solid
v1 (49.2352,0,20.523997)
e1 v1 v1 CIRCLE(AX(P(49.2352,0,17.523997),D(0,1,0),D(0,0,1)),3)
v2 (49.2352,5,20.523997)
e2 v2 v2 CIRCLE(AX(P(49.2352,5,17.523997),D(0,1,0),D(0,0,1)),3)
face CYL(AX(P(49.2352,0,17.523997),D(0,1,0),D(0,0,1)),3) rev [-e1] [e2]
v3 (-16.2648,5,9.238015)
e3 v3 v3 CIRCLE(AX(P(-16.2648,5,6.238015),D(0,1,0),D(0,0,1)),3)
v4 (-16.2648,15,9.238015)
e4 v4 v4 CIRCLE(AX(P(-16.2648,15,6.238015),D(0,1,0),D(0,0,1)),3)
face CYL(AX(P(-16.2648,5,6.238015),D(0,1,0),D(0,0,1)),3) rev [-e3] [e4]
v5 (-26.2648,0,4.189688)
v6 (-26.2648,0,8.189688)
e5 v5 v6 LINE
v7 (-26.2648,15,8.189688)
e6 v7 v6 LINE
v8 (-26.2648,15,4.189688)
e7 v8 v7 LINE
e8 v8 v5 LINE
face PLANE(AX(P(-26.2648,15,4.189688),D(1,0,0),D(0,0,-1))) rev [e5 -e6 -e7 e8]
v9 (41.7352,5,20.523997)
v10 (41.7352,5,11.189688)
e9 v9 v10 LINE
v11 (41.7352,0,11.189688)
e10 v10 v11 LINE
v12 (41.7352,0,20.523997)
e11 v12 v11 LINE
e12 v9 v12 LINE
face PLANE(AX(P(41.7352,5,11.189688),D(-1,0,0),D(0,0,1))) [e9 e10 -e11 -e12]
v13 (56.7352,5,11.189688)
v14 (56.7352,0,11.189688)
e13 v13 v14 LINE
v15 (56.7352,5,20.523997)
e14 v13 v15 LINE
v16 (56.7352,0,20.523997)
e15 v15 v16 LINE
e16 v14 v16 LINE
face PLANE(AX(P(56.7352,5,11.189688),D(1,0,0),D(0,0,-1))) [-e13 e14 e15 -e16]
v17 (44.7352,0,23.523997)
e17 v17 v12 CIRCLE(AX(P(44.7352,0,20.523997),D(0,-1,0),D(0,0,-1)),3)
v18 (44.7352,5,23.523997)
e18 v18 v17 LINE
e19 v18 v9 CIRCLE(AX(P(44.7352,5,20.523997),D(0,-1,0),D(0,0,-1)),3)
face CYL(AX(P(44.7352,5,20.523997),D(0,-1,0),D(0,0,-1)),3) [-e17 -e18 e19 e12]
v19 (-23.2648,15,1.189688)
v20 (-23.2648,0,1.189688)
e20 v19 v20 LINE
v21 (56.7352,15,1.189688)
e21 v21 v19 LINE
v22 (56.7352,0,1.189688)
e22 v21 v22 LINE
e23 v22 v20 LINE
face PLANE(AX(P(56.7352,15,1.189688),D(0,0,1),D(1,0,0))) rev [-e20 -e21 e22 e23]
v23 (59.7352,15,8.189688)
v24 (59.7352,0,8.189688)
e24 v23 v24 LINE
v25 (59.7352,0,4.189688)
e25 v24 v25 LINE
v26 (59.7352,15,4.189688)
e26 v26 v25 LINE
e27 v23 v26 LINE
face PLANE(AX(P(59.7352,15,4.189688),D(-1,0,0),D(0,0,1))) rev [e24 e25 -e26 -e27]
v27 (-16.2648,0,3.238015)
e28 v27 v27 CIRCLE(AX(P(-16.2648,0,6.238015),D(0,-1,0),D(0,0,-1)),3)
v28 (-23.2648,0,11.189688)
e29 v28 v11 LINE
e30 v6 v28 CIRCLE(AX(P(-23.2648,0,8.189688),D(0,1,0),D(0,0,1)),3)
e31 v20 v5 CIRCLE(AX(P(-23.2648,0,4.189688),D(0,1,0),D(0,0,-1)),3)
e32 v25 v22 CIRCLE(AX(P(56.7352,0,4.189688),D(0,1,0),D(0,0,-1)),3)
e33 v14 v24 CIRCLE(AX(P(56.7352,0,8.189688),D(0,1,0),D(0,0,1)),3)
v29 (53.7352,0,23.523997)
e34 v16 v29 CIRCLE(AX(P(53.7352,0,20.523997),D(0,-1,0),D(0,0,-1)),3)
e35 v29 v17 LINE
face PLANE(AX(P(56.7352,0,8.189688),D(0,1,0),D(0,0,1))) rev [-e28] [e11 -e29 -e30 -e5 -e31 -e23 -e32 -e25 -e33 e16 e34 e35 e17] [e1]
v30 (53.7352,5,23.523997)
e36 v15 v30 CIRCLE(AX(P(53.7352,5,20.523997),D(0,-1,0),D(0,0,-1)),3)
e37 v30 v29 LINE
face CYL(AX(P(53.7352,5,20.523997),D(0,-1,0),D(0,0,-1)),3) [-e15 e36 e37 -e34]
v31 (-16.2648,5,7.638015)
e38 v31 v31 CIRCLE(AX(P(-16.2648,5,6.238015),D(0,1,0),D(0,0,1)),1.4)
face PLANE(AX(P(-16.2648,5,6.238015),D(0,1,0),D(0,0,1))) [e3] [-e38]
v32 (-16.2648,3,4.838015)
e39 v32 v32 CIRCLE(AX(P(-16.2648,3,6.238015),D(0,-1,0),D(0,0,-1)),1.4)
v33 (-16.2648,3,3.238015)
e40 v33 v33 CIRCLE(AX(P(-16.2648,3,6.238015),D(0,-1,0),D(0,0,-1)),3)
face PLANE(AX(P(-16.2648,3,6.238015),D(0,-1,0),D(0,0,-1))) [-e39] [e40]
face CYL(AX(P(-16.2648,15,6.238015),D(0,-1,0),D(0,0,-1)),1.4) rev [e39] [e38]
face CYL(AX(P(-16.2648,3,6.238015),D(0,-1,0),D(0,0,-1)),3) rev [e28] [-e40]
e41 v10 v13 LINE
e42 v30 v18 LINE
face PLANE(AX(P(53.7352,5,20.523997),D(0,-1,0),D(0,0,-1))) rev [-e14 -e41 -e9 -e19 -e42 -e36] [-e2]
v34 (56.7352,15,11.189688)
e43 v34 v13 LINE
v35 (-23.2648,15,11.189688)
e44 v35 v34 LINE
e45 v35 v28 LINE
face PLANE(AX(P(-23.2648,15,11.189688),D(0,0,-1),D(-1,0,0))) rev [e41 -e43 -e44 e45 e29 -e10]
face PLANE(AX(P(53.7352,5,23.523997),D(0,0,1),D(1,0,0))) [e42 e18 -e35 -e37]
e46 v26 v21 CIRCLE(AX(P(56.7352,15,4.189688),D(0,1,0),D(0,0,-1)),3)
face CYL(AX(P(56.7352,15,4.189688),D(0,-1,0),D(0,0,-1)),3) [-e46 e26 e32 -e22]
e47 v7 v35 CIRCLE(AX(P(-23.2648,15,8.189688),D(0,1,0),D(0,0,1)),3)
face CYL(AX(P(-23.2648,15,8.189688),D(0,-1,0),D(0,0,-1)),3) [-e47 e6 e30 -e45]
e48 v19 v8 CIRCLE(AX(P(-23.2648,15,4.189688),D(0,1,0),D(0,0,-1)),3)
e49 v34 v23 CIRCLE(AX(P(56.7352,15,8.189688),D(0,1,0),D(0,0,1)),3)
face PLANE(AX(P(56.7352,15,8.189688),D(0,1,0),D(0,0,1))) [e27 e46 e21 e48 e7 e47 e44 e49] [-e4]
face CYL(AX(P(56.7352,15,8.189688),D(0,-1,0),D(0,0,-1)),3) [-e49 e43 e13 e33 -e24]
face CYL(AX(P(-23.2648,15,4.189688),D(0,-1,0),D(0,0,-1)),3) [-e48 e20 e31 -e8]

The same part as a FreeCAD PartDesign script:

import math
import FreeCAD as App
import Part
import Sketcher
Q = App.Units.Quantity

doc = App.newDocument("Part")
body = doc.addObject("PartDesign::Body", "Body")

# Sketch on XZ plane
sketch1 = body.newObject("Sketcher::SketchObject", "Sketch")
sketch1.AttachmentSupport = (doc.getObject("XZ_Plane"), [""])
sketch1.MapMode = "FlatFace"
sketch1.addGeometry([
    Part.LineSegment(App.Vector(-26.3, 4.2, 0), App.Vector(-26.3, 8.2, 0)),  # 0
    Part.ArcOfCircle(Part.Circle(App.Vector(-23.3, 8.2, 0), App.Vector(0, 0, 1), 3), math.radians(90), math.radians(180)),  # 1
    Part.LineSegment(App.Vector(-23.3, 11.2, 0), App.Vector(56.7, 11.2, 0)),  # 2
    Part.ArcOfCircle(Part.Circle(App.Vector(56.7, 8.2, 0), App.Vector(0, 0, 1), 3), math.radians(0), math.radians(90)),  # 3
    Part.LineSegment(App.Vector(59.7, 8.2, 0), App.Vector(59.7, 4.2, 0)),  # 4
    Part.ArcOfCircle(Part.Circle(App.Vector(56.7, 4.2, 0), App.Vector(0, 0, 1), 3), math.radians(-90), math.radians(0)),  # 5
    Part.LineSegment(App.Vector(56.7, 1.2, 0), App.Vector(-23.3, 1.2, 0)),  # 6
    Part.ArcOfCircle(Part.Circle(App.Vector(-23.3, 4.2, 0), App.Vector(0, 0, 1), 3), math.radians(180), math.radians(270)),  # 7
    Part.Circle(App.Vector(-16.3, 6.2, 0), App.Vector(0, 0, 1), 1.4),  # 8
], False)
sketch1.addConstraint([
    Sketcher.Constraint("Tangent", 0, 2, 1, 2),
    Sketcher.Constraint("Tangent", 1, 1, 2, 1),
    Sketcher.Constraint("Tangent", 2, 2, 3, 2),
    Sketcher.Constraint("Tangent", 3, 1, 4, 1),
    Sketcher.Constraint("Tangent", 4, 2, 5, 2),
    Sketcher.Constraint("Tangent", 5, 1, 6, 1),
    Sketcher.Constraint("Tangent", 6, 2, 7, 2),
    Sketcher.Constraint("Tangent", 7, 1, 0, 1),
    Sketcher.Constraint("Vertical", 0),
    Sketcher.Constraint("Horizontal", 2),
    Sketcher.Constraint("Vertical", 4),
    Sketcher.Constraint("Horizontal", 6),
    Sketcher.Constraint("Equal", 1, 3),
    Sketcher.Constraint("Equal", 3, 5),
    Sketcher.Constraint("Equal", 5, 7),
    Sketcher.Constraint("Radius", 1, Q("3 mm")),
    Sketcher.Constraint("Diameter", 8, Q("2.8 mm")),
    Sketcher.Constraint("DistanceX", 2, 1, 2, 2, Q("80 mm")),
    Sketcher.Constraint("DistanceY", 0, 1, 0, 2, Q("4 mm")),
    Sketcher.Constraint("DistanceX", 1, 3, 8, 3, Q("7 mm")),
    Sketcher.Constraint("DistanceX", 1, 3, -1, 1, Q("23.2648 mm")),
    Sketcher.Constraint("DistanceY", -1, 1, 1, 3, Q("8.189688 mm")),
    Sketcher.Constraint("DistanceY", -1, 1, 8, 3, Q("6.238015 mm")),
])
pad1 = body.newObject("PartDesign::Pad", "Pad")
pad1.Profile = sketch1
pad1.Length = 15
pad1.Reversed = True

# Sketch on XZ plane
sketch2 = body.newObject("Sketcher::SketchObject", "Sketch001")
sketch2.AttachmentSupport = (doc.getObject("XZ_Plane"), [""])
sketch2.MapMode = "FlatFace"
sketch2.addGeometry(Part.Circle(App.Vector(-16.3, 6.2, 0), App.Vector(0, 0, 1), 3), False)
sketch2.addConstraint([
    Sketcher.Constraint("Diameter", 0, Q("6 mm")),
    Sketcher.Constraint("DistanceX", 0, 3, -1, 1, Q("16.2648 mm")),
    Sketcher.Constraint("DistanceY", -1, 1, 0, 3, Q("6.238015 mm")),
])
pocket1 = body.newObject("PartDesign::Pocket", "Pocket")
pocket1.Profile = sketch2
pocket1.Length = 3

# Sketch on XZ plane
sketch3 = body.newObject("Sketcher::SketchObject", "Sketch002")
sketch3.AttachmentSupport = (doc.getObject("XZ_Plane"), [""])
sketch3.MapMode = "FlatFace"
sketch3.AttachmentOffset = App.Placement(App.Vector(0, 0, -15), App.Rotation())
sketch3.addGeometry(Part.Circle(App.Vector(-16.3, 6.2, 0), App.Vector(0, 0, 1), 3), False)
sketch3.addConstraint([
    Sketcher.Constraint("Diameter", 0, Q("6 mm")),
    Sketcher.Constraint("DistanceX", 0, 3, -1, 1, Q("16.2648 mm")),
    Sketcher.Constraint("DistanceY", -1, 1, 0, 3, Q("6.238015 mm")),
])
pocket2 = body.newObject("PartDesign::Pocket", "Pocket001")
pocket2.Profile = sketch3
pocket2.Length = 10
pocket2.Reversed = True

# Sketch on XZ plane
sketch4 = body.newObject("Sketcher::SketchObject", "Sketch003")
sketch4.AttachmentSupport = (doc.getObject("XZ_Plane"), [""])
sketch4.MapMode = "FlatFace"
sketch4.addGeometry([
    Part.LineSegment(App.Vector(41.7, 11.2, 0), App.Vector(56.7, 11.2, 0)),  # 0
    Part.LineSegment(App.Vector(56.7, 11.2, 0), App.Vector(56.7, 20.5, 0)),  # 1
    Part.ArcOfCircle(Part.Circle(App.Vector(53.7, 20.5, 0), App.Vector(0, 0, 1), 3), math.radians(0), math.radians(90)),  # 2
    Part.LineSegment(App.Vector(53.7, 23.5, 0), App.Vector(44.7, 23.5, 0)),  # 3
    Part.ArcOfCircle(Part.Circle(App.Vector(44.7, 20.5, 0), App.Vector(0, 0, 1), 3), math.radians(90), math.radians(180)),  # 4
    Part.LineSegment(App.Vector(41.7, 20.5, 0), App.Vector(41.7, 11.2, 0)),  # 5
], False)
sketch4.addConstraint([
    Sketcher.Constraint("Coincident", 0, 2, 1, 1),
    Sketcher.Constraint("Tangent", 1, 2, 2, 1),
    Sketcher.Constraint("Tangent", 2, 2, 3, 1),
    Sketcher.Constraint("Tangent", 3, 2, 4, 1),
    Sketcher.Constraint("Tangent", 4, 2, 5, 1),
    Sketcher.Constraint("Coincident", 5, 2, 0, 1),
    Sketcher.Constraint("Horizontal", 0),
    Sketcher.Constraint("Vertical", 1),
    Sketcher.Constraint("Horizontal", 3),
    Sketcher.Constraint("Vertical", 5),
    Sketcher.Constraint("Equal", 2, 4),
    Sketcher.Constraint("Radius", 2, Q("3 mm")),
    Sketcher.Constraint("DistanceX", 0, 1, 0, 2, Q("15 mm")),
    Sketcher.Constraint("DistanceY", 1, 1, 1, 2, Q("9.334309 mm")),
    Sketcher.Constraint("DistanceX", -1, 1, 2, 3, Q("53.7352 mm")),
    Sketcher.Constraint("DistanceY", -1, 1, 0, 2, Q("11.189688 mm")),
])
pad2 = body.newObject("PartDesign::Pad", "Pad001")
pad2.Profile = sketch4
pad2.Length = 5
pad2.Reversed = True

# Sketch on XZ plane
sketch5 = body.newObject("Sketcher::SketchObject", "Sketch004")
sketch5.AttachmentSupport = (doc.getObject("XZ_Plane"), [""])
sketch5.MapMode = "FlatFace"
sketch5.AttachmentOffset = App.Placement(App.Vector(0, 0, -5), App.Rotation())
sketch5.addGeometry(Part.Circle(App.Vector(49.2, 17.5, 0), App.Vector(0, 0, 1), 3), False)
sketch5.addConstraint([
    Sketcher.Constraint("Diameter", 0, Q("6 mm")),
    Sketcher.Constraint("DistanceX", -1, 1, 0, 3, Q("49.2352 mm")),
    Sketcher.Constraint("DistanceY", -1, 1, 0, 3, Q("17.523997 mm")),
])
pocket3 = body.newObject("PartDesign::Pocket", "Pocket002")
pocket3.Profile = sketch5
pocket3.Length = 5
pocket3.Reversed = True

doc.recompute()
